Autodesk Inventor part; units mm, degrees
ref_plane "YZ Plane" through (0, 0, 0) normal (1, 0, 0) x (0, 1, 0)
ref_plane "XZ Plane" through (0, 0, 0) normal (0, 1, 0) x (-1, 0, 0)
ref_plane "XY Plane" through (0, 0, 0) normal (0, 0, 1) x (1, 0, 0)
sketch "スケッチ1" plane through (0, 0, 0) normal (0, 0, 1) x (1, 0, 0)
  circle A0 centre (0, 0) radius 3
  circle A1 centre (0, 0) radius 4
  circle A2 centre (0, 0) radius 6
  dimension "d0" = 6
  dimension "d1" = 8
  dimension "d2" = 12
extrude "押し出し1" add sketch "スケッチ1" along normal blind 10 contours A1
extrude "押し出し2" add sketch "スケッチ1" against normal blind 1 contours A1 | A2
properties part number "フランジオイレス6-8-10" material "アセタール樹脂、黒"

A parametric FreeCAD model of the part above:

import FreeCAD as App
import Part
import Sketcher
Q = App.Units.Quantity

doc = App.newDocument("Part")
body = doc.addObject("PartDesign::Body", "Body")

# Sketch on XY plane
sketch1 = body.newObject("Sketcher::SketchObject", "Sketch")
sketch1.AttachmentSupport = (doc.getObject("XY_Plane"), [""])
sketch1.MapMode = "FlatFace"
sketch1.addGeometry(Part.Circle(App.Vector(0, 0, 0), App.Vector(0, 0, 1), 4), False)
sketch1.addGeometry(Part.Circle(App.Vector(0, 0, 0), App.Vector(0, 0, 1), 3), False)
sketch1.addConstraint(Sketcher.Constraint("Coincident", 0, 3, -1, 1))
sketch1.addConstraint(Sketcher.Constraint("Coincident", 1, 3, -1, 1))
sketch1.addConstraint(Sketcher.Constraint("Diameter", 0, Q("8 mm")))
sketch1.addConstraint(Sketcher.Constraint("Diameter", 1, Q("6 mm")))
pad1 = body.newObject("PartDesign::Pad", "Pad")
pad1.Profile = sketch1
pad1.Length = 10

# Sketch on XY plane
sketch2 = body.newObject("Sketcher::SketchObject", "Sketch001")
sketch2.AttachmentSupport = (doc.getObject("XY_Plane"), [""])
sketch2.MapMode = "FlatFace"
sketch2.addGeometry(Part.Circle(App.Vector(0, 0, 0), App.Vector(0, 0, 1), 6), False)
sketch2.addGeometry(Part.Circle(App.Vector(0, 0, 0), App.Vector(0, 0, 1), 3), False)
sketch2.addConstraint(Sketcher.Constraint("Coincident", 0, 3, -1, 1))
sketch2.addConstraint(Sketcher.Constraint("Coincident", 1, 3, -1, 1))
sketch2.addConstraint(Sketcher.Constraint("Diameter", 0, Q("12 mm")))
sketch2.addConstraint(Sketcher.Constraint("Diameter", 1, Q("6 mm")))
pad2 = body.newObject("PartDesign::Pad", "Pad001")
pad2.Profile = sketch2
pad2.Length = 1
pad2.Reversed = True

doc.recompute()
